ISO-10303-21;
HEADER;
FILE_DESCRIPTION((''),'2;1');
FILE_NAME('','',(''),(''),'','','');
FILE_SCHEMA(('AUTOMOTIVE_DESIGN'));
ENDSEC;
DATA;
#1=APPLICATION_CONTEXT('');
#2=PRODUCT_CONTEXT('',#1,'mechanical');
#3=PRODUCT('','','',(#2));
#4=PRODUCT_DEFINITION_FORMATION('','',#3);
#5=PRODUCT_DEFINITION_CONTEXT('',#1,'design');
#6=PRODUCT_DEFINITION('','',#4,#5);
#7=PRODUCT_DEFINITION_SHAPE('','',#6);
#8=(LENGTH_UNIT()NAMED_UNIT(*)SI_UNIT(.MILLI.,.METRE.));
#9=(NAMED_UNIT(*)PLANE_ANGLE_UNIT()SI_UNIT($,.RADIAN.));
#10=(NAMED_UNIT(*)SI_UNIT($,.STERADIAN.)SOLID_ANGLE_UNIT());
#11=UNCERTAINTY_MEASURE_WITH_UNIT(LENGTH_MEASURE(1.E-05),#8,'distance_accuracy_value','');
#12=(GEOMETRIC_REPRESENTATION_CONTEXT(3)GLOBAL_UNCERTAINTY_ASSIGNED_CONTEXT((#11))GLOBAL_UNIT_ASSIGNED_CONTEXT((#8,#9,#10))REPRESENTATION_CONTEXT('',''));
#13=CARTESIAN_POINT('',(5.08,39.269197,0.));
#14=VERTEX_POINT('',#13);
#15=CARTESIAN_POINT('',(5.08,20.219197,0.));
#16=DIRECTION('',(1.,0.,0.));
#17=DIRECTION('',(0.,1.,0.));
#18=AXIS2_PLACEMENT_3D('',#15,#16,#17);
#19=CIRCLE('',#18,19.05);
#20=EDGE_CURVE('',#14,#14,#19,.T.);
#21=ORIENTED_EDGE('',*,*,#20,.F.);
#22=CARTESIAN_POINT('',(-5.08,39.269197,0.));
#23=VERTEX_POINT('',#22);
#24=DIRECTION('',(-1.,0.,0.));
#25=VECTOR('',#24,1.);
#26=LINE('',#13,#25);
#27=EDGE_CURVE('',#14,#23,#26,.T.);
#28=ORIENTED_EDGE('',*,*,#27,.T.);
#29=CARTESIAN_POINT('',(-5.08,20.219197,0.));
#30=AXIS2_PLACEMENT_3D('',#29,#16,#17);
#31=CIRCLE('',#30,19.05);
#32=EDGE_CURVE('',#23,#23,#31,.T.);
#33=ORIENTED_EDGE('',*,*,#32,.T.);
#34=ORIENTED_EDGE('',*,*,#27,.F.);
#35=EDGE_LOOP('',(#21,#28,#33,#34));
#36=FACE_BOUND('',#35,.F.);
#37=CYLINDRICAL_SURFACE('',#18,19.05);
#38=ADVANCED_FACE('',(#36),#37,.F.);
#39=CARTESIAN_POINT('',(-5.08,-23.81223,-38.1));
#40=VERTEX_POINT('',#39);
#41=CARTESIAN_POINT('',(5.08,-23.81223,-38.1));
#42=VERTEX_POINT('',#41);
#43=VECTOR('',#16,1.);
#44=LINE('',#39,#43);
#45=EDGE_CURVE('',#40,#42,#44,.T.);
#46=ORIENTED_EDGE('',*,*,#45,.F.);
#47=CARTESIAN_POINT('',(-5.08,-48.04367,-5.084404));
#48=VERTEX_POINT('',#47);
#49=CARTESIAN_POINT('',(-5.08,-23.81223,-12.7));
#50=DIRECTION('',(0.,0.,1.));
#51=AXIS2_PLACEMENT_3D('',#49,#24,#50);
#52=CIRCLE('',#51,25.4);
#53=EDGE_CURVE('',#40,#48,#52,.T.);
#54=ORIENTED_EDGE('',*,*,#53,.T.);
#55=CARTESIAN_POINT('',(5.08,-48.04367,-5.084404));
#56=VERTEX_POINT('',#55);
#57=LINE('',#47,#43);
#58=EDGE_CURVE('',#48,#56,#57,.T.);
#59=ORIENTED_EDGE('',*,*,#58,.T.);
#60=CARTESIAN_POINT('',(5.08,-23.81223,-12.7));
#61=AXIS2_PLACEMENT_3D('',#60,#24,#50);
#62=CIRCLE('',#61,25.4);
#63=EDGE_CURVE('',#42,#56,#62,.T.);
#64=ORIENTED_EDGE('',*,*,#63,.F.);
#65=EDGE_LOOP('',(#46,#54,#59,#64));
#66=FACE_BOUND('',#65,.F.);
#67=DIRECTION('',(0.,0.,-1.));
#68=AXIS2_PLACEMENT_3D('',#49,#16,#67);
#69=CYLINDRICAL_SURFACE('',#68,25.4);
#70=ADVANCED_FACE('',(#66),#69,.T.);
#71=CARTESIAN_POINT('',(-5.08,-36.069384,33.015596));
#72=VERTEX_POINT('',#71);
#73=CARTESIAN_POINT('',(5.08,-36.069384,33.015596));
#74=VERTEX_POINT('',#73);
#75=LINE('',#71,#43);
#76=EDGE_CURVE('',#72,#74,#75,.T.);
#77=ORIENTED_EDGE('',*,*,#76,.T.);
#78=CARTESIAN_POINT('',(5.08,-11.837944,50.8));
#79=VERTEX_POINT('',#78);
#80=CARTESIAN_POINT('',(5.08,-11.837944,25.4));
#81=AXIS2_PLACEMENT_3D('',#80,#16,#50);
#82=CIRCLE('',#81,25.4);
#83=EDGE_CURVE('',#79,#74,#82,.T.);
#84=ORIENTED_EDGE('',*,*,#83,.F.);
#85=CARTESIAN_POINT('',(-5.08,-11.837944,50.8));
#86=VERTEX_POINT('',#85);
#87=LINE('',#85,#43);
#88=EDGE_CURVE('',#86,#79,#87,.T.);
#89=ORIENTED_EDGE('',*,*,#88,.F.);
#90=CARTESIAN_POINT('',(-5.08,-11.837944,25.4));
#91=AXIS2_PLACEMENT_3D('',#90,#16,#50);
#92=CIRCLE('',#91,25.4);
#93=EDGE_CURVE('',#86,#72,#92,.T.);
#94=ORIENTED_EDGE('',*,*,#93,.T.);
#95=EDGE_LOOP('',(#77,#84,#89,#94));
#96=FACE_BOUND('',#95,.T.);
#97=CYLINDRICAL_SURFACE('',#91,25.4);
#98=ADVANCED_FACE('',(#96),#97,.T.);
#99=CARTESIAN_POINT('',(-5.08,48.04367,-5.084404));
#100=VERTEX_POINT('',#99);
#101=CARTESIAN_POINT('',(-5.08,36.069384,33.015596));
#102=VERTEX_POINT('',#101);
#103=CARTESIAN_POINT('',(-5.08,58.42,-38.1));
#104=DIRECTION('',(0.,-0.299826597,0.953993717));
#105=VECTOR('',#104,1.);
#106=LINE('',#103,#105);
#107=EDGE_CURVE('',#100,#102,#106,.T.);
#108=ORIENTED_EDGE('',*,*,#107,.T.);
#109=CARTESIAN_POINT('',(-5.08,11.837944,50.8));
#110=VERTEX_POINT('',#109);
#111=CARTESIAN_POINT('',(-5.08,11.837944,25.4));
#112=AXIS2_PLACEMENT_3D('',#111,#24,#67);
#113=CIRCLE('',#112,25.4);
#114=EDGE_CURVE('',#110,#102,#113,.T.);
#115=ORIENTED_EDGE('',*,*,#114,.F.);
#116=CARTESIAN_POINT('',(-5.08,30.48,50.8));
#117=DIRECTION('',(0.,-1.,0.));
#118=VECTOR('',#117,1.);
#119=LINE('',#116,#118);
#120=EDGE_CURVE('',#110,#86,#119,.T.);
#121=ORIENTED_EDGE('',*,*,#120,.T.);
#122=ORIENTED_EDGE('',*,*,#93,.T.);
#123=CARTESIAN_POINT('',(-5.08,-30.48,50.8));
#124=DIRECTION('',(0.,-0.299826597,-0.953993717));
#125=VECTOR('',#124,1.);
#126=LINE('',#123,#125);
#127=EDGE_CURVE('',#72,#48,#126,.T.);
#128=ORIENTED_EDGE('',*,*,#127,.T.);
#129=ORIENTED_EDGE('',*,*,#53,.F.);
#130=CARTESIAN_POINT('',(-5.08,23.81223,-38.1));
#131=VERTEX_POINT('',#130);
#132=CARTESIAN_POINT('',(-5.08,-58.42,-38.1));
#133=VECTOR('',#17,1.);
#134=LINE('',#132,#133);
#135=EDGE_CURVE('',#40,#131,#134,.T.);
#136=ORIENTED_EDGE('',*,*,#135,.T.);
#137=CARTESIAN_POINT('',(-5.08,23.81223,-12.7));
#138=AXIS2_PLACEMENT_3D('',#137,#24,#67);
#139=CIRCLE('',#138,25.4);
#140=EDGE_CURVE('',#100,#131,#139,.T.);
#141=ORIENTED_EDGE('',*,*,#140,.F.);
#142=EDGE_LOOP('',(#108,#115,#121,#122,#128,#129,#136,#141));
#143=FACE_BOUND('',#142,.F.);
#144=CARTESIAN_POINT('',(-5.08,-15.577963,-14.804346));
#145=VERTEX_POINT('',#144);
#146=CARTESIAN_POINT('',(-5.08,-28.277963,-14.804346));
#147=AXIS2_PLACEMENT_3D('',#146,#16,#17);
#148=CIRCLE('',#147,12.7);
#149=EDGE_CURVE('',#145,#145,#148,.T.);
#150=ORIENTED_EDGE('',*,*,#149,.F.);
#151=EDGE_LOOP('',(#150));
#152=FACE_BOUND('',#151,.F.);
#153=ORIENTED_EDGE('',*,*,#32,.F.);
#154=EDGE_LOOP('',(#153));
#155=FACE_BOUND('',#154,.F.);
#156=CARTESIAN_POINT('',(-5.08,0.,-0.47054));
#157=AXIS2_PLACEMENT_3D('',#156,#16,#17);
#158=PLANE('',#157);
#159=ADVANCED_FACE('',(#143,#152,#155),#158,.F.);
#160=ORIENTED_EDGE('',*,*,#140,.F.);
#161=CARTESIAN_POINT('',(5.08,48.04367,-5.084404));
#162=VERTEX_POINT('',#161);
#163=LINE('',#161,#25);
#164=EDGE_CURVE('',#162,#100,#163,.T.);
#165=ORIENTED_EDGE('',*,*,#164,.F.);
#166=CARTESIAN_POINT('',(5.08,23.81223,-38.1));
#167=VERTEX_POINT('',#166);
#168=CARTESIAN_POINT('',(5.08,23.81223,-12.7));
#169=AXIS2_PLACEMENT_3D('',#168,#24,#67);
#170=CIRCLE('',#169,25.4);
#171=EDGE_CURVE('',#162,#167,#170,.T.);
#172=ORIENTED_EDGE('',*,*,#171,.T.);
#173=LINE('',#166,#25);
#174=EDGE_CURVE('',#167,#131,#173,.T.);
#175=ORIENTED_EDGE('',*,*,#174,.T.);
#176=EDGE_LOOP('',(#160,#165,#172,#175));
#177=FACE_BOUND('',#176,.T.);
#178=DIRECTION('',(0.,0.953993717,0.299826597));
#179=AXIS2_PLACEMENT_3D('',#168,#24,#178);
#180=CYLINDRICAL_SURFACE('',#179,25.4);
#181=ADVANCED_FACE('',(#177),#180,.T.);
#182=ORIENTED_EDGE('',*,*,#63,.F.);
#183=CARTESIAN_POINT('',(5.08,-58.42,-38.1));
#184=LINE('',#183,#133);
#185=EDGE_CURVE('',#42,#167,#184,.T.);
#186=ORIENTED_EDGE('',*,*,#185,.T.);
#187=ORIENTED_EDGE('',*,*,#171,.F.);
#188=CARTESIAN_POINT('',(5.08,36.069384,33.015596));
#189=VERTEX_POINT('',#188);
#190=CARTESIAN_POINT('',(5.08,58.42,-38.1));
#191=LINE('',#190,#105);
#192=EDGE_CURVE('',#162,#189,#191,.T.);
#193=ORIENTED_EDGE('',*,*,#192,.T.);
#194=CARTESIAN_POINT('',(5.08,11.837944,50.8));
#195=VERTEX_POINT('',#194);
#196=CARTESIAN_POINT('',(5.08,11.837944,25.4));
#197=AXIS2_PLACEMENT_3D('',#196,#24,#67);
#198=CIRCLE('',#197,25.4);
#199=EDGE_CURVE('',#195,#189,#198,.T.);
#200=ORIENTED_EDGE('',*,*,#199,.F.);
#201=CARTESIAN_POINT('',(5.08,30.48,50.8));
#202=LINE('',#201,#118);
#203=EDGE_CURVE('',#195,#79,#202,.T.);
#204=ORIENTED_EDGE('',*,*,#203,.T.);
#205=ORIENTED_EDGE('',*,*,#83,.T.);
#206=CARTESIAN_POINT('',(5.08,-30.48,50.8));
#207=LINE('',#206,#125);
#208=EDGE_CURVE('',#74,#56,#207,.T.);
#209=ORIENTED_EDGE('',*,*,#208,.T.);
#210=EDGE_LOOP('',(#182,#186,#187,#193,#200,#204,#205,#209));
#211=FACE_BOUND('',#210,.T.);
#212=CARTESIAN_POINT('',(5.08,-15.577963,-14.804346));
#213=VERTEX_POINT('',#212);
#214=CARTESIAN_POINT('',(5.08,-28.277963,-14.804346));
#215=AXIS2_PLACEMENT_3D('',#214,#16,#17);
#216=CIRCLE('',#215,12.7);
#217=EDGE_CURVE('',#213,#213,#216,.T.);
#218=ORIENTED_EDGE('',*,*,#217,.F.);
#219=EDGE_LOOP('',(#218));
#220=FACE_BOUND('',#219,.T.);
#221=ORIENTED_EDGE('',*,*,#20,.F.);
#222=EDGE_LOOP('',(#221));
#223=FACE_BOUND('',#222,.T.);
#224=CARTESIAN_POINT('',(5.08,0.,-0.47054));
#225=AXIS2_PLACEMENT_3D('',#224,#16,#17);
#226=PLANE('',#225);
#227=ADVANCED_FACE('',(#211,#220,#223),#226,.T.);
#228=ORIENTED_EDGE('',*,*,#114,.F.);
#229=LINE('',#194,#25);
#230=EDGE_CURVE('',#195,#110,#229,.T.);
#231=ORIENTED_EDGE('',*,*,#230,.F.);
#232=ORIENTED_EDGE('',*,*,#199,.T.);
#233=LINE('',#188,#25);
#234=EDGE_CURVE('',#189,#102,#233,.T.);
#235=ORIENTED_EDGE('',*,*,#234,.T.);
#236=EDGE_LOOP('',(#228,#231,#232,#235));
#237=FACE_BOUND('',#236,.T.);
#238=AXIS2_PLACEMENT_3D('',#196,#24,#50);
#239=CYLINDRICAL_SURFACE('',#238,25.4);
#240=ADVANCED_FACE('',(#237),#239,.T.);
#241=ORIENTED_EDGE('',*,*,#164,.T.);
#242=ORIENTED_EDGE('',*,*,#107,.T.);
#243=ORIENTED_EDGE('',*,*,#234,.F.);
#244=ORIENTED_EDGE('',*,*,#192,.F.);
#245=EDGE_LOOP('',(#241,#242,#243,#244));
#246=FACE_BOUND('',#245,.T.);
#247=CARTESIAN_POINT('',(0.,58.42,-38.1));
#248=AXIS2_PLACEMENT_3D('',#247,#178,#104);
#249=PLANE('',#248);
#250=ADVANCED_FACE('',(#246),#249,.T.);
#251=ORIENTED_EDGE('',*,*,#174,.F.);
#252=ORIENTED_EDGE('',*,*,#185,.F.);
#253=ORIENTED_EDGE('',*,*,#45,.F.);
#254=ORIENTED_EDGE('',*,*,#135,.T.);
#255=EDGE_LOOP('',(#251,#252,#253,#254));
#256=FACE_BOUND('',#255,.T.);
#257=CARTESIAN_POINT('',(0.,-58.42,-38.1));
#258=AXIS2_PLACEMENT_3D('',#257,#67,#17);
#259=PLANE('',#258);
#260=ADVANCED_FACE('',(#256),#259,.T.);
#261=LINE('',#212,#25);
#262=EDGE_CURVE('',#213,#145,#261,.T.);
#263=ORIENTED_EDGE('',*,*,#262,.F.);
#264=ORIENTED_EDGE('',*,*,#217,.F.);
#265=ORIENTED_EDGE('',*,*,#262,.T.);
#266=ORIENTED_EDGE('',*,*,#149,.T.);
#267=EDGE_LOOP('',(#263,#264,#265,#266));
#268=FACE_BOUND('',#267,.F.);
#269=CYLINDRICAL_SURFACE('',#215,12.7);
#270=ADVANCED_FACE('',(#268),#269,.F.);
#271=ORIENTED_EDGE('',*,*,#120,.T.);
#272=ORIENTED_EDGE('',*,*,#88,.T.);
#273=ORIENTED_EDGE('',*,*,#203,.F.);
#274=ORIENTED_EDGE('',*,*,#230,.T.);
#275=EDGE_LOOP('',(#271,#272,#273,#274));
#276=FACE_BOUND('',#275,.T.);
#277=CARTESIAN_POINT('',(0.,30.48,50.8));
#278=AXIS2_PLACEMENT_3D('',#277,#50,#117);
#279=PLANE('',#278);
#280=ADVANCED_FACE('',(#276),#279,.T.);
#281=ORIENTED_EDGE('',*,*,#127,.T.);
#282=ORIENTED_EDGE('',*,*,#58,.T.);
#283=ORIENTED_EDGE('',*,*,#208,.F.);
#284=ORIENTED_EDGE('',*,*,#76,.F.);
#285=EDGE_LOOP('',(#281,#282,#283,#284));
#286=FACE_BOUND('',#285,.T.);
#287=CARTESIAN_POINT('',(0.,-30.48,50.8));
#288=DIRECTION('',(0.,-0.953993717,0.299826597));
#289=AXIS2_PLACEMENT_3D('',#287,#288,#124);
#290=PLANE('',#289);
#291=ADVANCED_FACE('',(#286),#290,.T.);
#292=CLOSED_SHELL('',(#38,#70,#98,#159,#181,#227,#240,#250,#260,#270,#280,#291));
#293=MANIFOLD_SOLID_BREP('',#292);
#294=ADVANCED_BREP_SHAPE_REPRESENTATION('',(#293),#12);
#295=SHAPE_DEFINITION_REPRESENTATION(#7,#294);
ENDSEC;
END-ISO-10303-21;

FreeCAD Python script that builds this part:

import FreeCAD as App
import Part
import Sketcher
from FreeCAD import Vector
Q = App.Units.Quantity


def edges_at(feature, points):
    """Names of the edges that pass closest to the given points."""
    edges = feature.Shape.Edges
    near = lambda p: min(range(len(edges)), key=lambda i: edges[i].distToShape(Part.Vertex(*p))[0])
    return sorted({f"Edge{near(p) + 1}" for p in points})

doc = App.newDocument("Part")
body = doc.addObject("PartDesign::Body", "Body")

# Sketch on YZ plane
sketch1 = body.newObject("Sketcher::SketchObject", "Sketch")
sketch1.AttachmentSupport = (doc.getObject("YZ_Plane"), [""])
sketch1.MapMode = "FlatFace"
sketch1.addGeometry(Part.LineSegment(Vector(30.48, 50.8, 0), Vector(-30.48, 50.8, 0)), False)
sketch1.addGeometry(Part.LineSegment(Vector(-30.48, 50.8, 0), Vector(-58.42, -38.1, 0)), False)
sketch1.addGeometry(Part.LineSegment(Vector(-58.42, -38.1, 0), Vector(58.42, -38.1, 0)), False)
sketch1.addGeometry(Part.LineSegment(Vector(58.42, -38.1, 0), Vector(30.48, 50.8, 0)), False)
sketch1.addConstraint(Sketcher.Constraint("Coincident", 0, 2, 1, 1))
sketch1.addConstraint(Sketcher.Constraint("Coincident", 1, 2, 2, 1))
sketch1.addConstraint(Sketcher.Constraint("Coincident", 2, 2, 3, 1))
sketch1.addConstraint(Sketcher.Constraint("Coincident", 3, 2, 0, 1))
sketch1.addConstraint(Sketcher.Constraint("Horizontal", 0))
sketch1.addConstraint(Sketcher.Constraint("Horizontal", 2))
sketch1.addConstraint(Sketcher.Constraint("Equal", 1, 3))
sketch1.addConstraint(Sketcher.Constraint("DistanceX", 0, 2, 0, 1, Q("2.4 in")))
sketch1.addConstraint(Sketcher.Constraint("DistanceX", 2, 1, 2, 2, Q("4.6 in")))
sketch1.addConstraint(Sketcher.Constraint("DistanceY", -1, 1, 0, 2, Q("2 in")))
sketch1.addConstraint(Sketcher.Constraint("DistanceX", 0, 2, -1, 1, Q("1.2 in")))
sketch1.addConstraint(Sketcher.Constraint("DistanceY", 1, 2, -1, 1, Q("1.5 in")))
pad1 = body.newObject("PartDesign::Pad", "Pad")
pad1.Profile = sketch1
pad1.Type = "TwoLengths"
pad1.Length = Q("0.2 in")
pad1.Length2 = Q("0.2 in")
doc.recompute()

fillet = body.newObject("PartDesign::Fillet", "Fillet")
fillet.Base = (pad1, edges_at(pad1, [
    (0, -30.48, 50.8),
    (0, -58.42, -38.1),
    (0, 30.48, 50.8),
    (0, 58.42, -38.1),
]))
fillet.Radius = Q("1 in")

# Sketch on YZ plane
sketch2 = body.newObject("Sketcher::SketchObject", "Sketch001")
sketch2.AttachmentSupport = (doc.getObject("YZ_Plane"), [""])
sketch2.MapMode = "FlatFace"
sketch2.AttachmentOffset = App.Placement(Vector(0, 0, 0.2 * 25.4), App.Rotation())
sketch2.addGeometry(Part.Circle(Vector(20.219197, 0, 0), Vector(0, 0, 1), 19.05), False)
sketch2.addConstraint(Sketcher.Constraint("PointOnObject", 0, 3, -1))
sketch2.addConstraint(Sketcher.Constraint("Diameter", 0, Q("1.5 in")))
sketch2.addConstraint(Sketcher.Constraint("DistanceX", -1, 1, 0, 3, 20.219197))
pocket1 = body.newObject("PartDesign::Pocket", "Pocket")
pocket1.Profile = sketch2
pocket1.Length = Q("1 in")

# Sketch on YZ plane
sketch3 = body.newObject("Sketcher::SketchObject", "Sketch002")
sketch3.AttachmentSupport = (doc.getObject("YZ_Plane"), [""])
sketch3.MapMode = "FlatFace"
sketch3.AttachmentOffset = App.Placement(Vector(0, 0, 0.2 * 25.4), App.Rotation())
sketch3.addGeometry(Part.Circle(Vector(-28.277963, -14.804346, 0), Vector(0, 0, 1), 12.7), False)
sketch3.addConstraint(Sketcher.Constraint("Diameter", 0, Q("1 in")))
sketch3.addConstraint(Sketcher.Constraint("DistanceX", 0, 3, -1, 1, 28.277963))
sketch3.addConstraint(Sketcher.Constraint("DistanceY", 0, 3, -1, 1, 14.804346))
pocket2 = body.newObject("PartDesign::Pocket", "Pocket001")
pocket2.Profile = sketch3
pocket2.Length = Q("1 in")

doc.recompute()
